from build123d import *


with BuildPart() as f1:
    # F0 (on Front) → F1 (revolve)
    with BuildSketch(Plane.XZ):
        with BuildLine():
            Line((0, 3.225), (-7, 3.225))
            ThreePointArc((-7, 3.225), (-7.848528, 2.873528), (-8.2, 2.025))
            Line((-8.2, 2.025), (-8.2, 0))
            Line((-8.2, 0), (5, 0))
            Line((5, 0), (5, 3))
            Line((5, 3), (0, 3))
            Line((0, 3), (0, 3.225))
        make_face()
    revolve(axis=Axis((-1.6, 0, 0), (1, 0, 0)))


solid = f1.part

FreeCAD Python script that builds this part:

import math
import FreeCAD as App
import Part
import Sketcher
from FreeCAD import Vector

doc = App.newDocument("Part")
body = doc.addObject("PartDesign::Body", "Body")

# Sketch on XZ plane
sketch1 = body.newObject("Sketcher::SketchObject", "Sketch")
sketch1.AttachmentSupport = (doc.getObject("XZ_Plane"), [""])
sketch1.MapMode = "FlatFace"
sketch1.addGeometry([
    Part.LineSegment(Vector(0, 3.225, 0), Vector(-7, 3.225, 0)),  # 0
    Part.ArcOfCircle(Part.Circle(Vector(-7, 2.025, 0), Vector(0, 0, 1), 1.2), math.radians(90.000022), math.radians(179.999978)),  # 1
    Part.LineSegment(Vector(-8.2, 2.025, 0), Vector(-8.2, 0, 0)),  # 2
    Part.LineSegment(Vector(-8.2, 0, 0), Vector(5, 0, 0)),  # 3
    Part.LineSegment(Vector(5, 0, 0), Vector(5, 3, 0)),  # 4
    Part.LineSegment(Vector(5, 3, 0), Vector(0, 3, 0)),  # 5
    Part.LineSegment(Vector(0, 3, 0), Vector(0, 3.225, 0)),  # 6
], False)
sketch1.addConstraint([
    Sketcher.Constraint("Tangent", 0, 2, 1, 1),
    Sketcher.Constraint("Tangent", 1, 2, 2, 1),
    Sketcher.Constraint("Coincident", 2, 2, 3, 1),
    Sketcher.Constraint("Coincident", 3, 2, 4, 1),
    Sketcher.Constraint("Coincident", 4, 2, 5, 1),
    Sketcher.Constraint("Coincident", 5, 2, 6, 1),
    Sketcher.Constraint("Coincident", 6, 2, 0, 1),
    Sketcher.Constraint("Horizontal", 0),
    Sketcher.Constraint("Vertical", 2),
    Sketcher.Constraint("Horizontal", 3),
    Sketcher.Constraint("Vertical", 4),
    Sketcher.Constraint("Horizontal", 5),
    Sketcher.Constraint("Vertical", 6),
    Sketcher.Constraint("PointOnObject", 2, 2, -1),
    Sketcher.Constraint("PointOnObject", 5, 2, -2),
    Sketcher.Constraint("Radius", 1, 1.2),
    Sketcher.Constraint("DistanceX", 0, 2, 0, 1, 7.0),
    Sketcher.Constraint("DistanceX", 5, 2, 5, 1, 5.0),
    Sketcher.Constraint("DistanceY", 4, 1, 4, 2, 3.0),
    Sketcher.Constraint("DistanceY", 2, 2, 2, 1, 2.025),
])
revolution = body.newObject("PartDesign::Revolution", "Revolution")
revolution.Profile = sketch1
revolution.ReferenceAxis = (sketch1, ["H_Axis"])
revolution.Angle = 360

doc.recompute()
